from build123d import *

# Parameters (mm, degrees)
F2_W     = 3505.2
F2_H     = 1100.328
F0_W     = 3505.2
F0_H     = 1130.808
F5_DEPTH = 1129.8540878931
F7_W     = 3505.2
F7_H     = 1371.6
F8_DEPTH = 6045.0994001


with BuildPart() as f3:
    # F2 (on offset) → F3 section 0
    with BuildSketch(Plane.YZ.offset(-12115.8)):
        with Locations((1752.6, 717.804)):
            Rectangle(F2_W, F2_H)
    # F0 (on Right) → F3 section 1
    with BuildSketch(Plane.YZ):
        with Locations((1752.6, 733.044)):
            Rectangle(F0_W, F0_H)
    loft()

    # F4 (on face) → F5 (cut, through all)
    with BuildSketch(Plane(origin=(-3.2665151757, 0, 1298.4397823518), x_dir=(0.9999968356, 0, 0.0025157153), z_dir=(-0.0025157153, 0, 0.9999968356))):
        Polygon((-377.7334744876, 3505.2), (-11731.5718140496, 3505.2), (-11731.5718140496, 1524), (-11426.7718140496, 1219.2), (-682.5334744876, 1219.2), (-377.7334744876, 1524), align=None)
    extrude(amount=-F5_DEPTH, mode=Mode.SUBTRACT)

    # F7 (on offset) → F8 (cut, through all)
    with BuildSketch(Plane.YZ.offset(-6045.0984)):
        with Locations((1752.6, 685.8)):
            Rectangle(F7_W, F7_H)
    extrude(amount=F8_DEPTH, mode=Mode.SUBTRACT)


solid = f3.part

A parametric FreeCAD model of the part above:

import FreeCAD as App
import Part
import Sketcher

V = App.Vector
Q = App.Units.Quantity


def add_polygon(sketch, points):
    """Adds a closed chain of lines whose ends are joined by coincident constraints."""
    first, n = sketch.GeometryCount, len(points)
    for a, b in zip(points, points[1:] + points[:1]):
        sketch.addGeometry(Part.LineSegment(App.Vector(*a, 0), App.Vector(*b, 0)), False)
    for i in range(n):
        sketch.addConstraint(Sketcher.Constraint("Coincident", first + i, 2, first + (i + 1) % n, 1))

doc = App.newDocument("Part")
params = doc.addObject("Spreadsheet::Sheet", "Params")
for row, (alias, value) in enumerate([
    ("sketch1_width", "138 in"),
    ("sketch1_height", "43.32 in"),
    ("sketch2_width", "138 in"),
    ("sketch2_height", "44.52 in"),
    ("sketch3_height", "78.0000001 in"),
    ("sketch4_width", "138 in"),
    ("sketch4_height", "54 in"),
], start=1):
    params.set(f"A{row}", alias)
    params.set(f"B{row}", "=" + value)
    params.setAlias(f"B{row}", alias)

body = doc.addObject("PartDesign::Body", "Body")

# Sketch on YZ plane
sketch1 = body.newObject("Sketcher::SketchObject", "Sketch")
sketch1.AttachmentSupport = (doc.getObject("YZ_Plane"), [""])
sketch1.MapMode = "FlatFace"
sketch1.AttachmentOffset = App.Placement(V(0, 0, -477 * 25.4), App.Rotation())
add_polygon(sketch1, [(0, 1268), (0, 168), (3505, 168), (3505, 1268)])  # lines 0-3
sketch1.addConstraint([
    Sketcher.Constraint("Vertical", 0),
    Sketcher.Constraint("Horizontal", 1),
    Sketcher.Constraint("Vertical", 2),
    Sketcher.Constraint("Horizontal", 3),
    Sketcher.Constraint("PointOnObject", 0, 2, -2),
    Sketcher.Constraint("DistanceX", 1, 1, 1, 2, Q("138 in")),
    Sketcher.Constraint("DistanceY", 0, 2, 0, 1, Q("43.32 in")),
    Sketcher.Constraint("DistanceY", -1, 1, 0, 2, Q("6.6 in")),
])
sketch1.setExpression("Constraints[9]", "Params.sketch1_width")
sketch1.setExpression("Constraints[10]", "Params.sketch1_height")

# Sketch on YZ plane
sketch2 = body.newObject("Sketcher::SketchObject", "Sketch001")
sketch2.AttachmentSupport = (doc.getObject("YZ_Plane"), [""])
sketch2.MapMode = "FlatFace"
add_polygon(sketch2, [(0, 1298), (0, 168), (3505, 168), (3505, 1298)])  # lines 0-3
sketch2.addConstraint([
    Sketcher.Constraint("Vertical", 0),
    Sketcher.Constraint("Horizontal", 1),
    Sketcher.Constraint("Vertical", 2),
    Sketcher.Constraint("Horizontal", 3),
    Sketcher.Constraint("PointOnObject", 0, 2, -2),
    Sketcher.Constraint("DistanceX", 1, 1, 1, 2, Q("138 in")),
    Sketcher.Constraint("DistanceY", 0, 2, 0, 1, Q("44.52 in")),
    Sketcher.Constraint("DistanceY", -1, 1, 0, 2, Q("6.6 in")),
])
sketch2.setExpression("Constraints[9]", "Params.sketch2_width")
sketch2.setExpression("Constraints[10]", "Params.sketch2_height")

additiveloft = body.newObject("PartDesign::AdditiveLoft", "AdditiveLoft")
additiveloft.Profile = sketch1
additiveloft.Sections = [sketch2]

# Sketch on an angled plane
sketch3 = body.newObject("Sketcher::SketchObject", "Sketch002")
sketch3.Placement = App.Placement(V(-3.266515, 0, 1298.439782), App.Rotation(V(0.999996836, 0, 0.002515715), V(0, 1.000000001, 0), V(-0.002515715, 0, 0.999996836), "ZXY"))
add_polygon(sketch3, [(-378, 3505), (-11732, 3505), (-11732, 1524), (-11427, 1219), (-683, 1219), (-378, 1524)])  # lines 0-5
sketch3.addConstraint([
    Sketcher.Constraint("Horizontal", 0),
    Sketcher.Constraint("Vertical", 1),
    Sketcher.Constraint("Horizontal", 3),
    Sketcher.Constraint("Vertical", 5),
    Sketcher.Constraint("Perpendicular", 2, 4),
    Sketcher.Constraint("Horizontal", 1, 2, 4, 2),
    Sketcher.Constraint("Equal", 2, 4),
    Sketcher.Constraint("DistanceY", 1, 2, 1, 1, Q("78.0000001 in")),
    Sketcher.Constraint("DistanceY", -1, 1, 1, 2, Q("60.0000001 in")),
    Sketcher.Constraint("DistanceY", -1, 1, 2, 2, Q("48.0000001 in")),
    Sketcher.Constraint("DistanceX", 0, 2, 0, 1, Q("11353.838349 mm")),
    Sketcher.Constraint("DistanceX", 0, 2, -1, 1, Q("11731.571824 mm")),
])
sketch3.setExpression("Constraints[13]", "Params.sketch3_height")
pocket1 = body.newObject("PartDesign::Pocket", "Pocket")
pocket1.Profile = sketch3
pocket1.Type = "ThroughAll"

# Sketch on YZ plane
sketch4 = body.newObject("Sketcher::SketchObject", "Sketch003")
sketch4.AttachmentSupport = (doc.getObject("YZ_Plane"), [""])
sketch4.MapMode = "FlatFace"
sketch4.AttachmentOffset = App.Placement(V(0, 0, -237.996 * 25.4), App.Rotation())
add_polygon(sketch4, [(0, 1372), (0, 0), (3505, 0), (3505, 1372)])  # lines 0-3
sketch4.addConstraint([
    Sketcher.Constraint("Vertical", 0),
    Sketcher.Constraint("Horizontal", 1),
    Sketcher.Constraint("Vertical", 2),
    Sketcher.Constraint("Horizontal", 3),
    Sketcher.Constraint("Coincident", 0, 2, -1, 1),
    Sketcher.Constraint("DistanceX", 1, 1, 1, 2, Q("138 in")),
    Sketcher.Constraint("DistanceY", 0, 2, 0, 1, Q("54 in")),
])
sketch4.setExpression("Constraints[9]", "Params.sketch4_width")
sketch4.setExpression("Constraints[10]", "Params.sketch4_height")
pocket2 = body.newObject("PartDesign::Pocket", "Pocket001")
pocket2.Profile = sketch4
pocket2.Type = "ThroughAll"
pocket2.Reversed = True

doc.recompute()
